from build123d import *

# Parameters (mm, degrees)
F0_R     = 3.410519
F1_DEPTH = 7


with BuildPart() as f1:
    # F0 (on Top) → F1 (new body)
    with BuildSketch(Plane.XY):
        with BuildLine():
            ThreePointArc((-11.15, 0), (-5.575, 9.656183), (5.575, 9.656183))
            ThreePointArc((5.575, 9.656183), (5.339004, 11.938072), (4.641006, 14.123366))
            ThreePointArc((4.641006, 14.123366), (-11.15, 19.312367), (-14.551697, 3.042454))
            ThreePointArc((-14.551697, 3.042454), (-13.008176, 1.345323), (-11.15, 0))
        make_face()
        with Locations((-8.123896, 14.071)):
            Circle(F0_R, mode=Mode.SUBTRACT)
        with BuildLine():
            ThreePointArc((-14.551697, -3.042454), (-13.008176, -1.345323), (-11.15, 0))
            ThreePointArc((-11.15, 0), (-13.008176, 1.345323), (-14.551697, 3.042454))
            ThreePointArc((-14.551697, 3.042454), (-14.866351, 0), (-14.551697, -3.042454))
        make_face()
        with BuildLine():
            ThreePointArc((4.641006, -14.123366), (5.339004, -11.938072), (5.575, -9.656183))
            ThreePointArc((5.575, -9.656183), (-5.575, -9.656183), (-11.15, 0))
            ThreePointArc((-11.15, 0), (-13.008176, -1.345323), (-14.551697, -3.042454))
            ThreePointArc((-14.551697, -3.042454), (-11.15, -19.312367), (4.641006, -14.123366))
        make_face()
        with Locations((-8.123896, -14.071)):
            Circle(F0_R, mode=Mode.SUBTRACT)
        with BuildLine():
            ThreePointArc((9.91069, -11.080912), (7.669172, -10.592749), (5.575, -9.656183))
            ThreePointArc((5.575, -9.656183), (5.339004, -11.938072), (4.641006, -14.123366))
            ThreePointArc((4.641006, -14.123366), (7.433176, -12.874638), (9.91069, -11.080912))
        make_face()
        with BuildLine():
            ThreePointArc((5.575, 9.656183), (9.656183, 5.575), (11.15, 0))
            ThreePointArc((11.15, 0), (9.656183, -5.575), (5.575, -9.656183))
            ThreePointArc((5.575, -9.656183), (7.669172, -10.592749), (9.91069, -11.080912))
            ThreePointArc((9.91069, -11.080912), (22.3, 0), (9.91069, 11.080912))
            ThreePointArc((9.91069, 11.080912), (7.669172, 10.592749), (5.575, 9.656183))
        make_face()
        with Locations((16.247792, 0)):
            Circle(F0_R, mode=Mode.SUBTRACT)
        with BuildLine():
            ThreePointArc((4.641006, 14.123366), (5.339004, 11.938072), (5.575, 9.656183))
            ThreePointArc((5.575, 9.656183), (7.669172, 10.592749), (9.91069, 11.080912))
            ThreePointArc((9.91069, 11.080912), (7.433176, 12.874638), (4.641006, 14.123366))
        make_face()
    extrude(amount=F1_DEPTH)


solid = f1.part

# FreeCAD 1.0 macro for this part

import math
import FreeCAD as App
import Part
import Sketcher
from FreeCAD import Vector

doc = App.newDocument("Part")
params = doc.addObject("Spreadsheet::Sheet", "Params")
for row, (alias, value) in enumerate([
    ("sketch1_radius", "11.15 mm"),
    ("pad1_length", "7 mm"),
], start=1):
    params.set(f"A{row}", alias)
    params.set(f"B{row}", "=" + value)
    params.setAlias(f"B{row}", alias)

body = doc.addObject("PartDesign::Body", "Body")

# Sketch on XY plane
sketch1 = body.newObject("Sketcher::SketchObject", "Sketch")
sketch1.AttachmentSupport = (doc.getObject("XY_Plane"), [""])
sketch1.MapMode = "FlatFace"
sketch1.addGeometry([
    Part.ArcOfCircle(Part.Circle(Vector(11.15, 0, 0), Vector(0, 0, 1), 11.15), math.radians(-96.381548), math.radians(96.381548)),  # 0
    Part.ArcOfCircle(Part.Circle(Vector(0.00001, 0.000019, 0), Vector(0, 0, 1), 14.86633), math.radians(48.190752), math.radians(71.80924)),  # 1
    Part.ArcOfCircle(Part.Circle(Vector(-5.575, 9.656183, 0), Vector(0, 0, 1), 11.15), math.radians(23.618455), math.radians(216.381544)),  # 2
    Part.ArcOfCircle(Part.Circle(Vector(0.000032, 0, 0), Vector(0, 0, 1), 14.866383), math.radians(168.190797), math.radians(191.809203)),  # 3
    Part.ArcOfCircle(Part.Circle(Vector(-5.575, -9.656183, 0), Vector(0, 0, 1), 11.15), math.radians(143.618456), math.radians(336.381545)),  # 4
    Part.ArcOfCircle(Part.Circle(Vector(0.00001, -0.000019, 0), Vector(0, 0, 1), 14.86633), math.radians(-71.80924), math.radians(-48.190752)),  # 5
    Part.Circle(Vector(-8.123896, -14.071, 0), Vector(0, 0, 1), 3.410519),  # 6
    Part.ArcOfCircle(Part.Circle(Vector(0, 0, 0), Vector(0, 0, 1), 11.15), math.radians(60), math.radians(179.999999)),  # 7
    Part.ArcOfCircle(Part.Circle(Vector(-0.000001, -0.000001, 0), Vector(0, 0, 1), 11.150001), math.radians(0.000003), math.radians(59.999998)),  # 8
    Part.ArcOfCircle(Part.Circle(Vector(-0.000001, 0.000001, 0), Vector(0, 0, 1), 11.150001), math.radians(-59.999998), math.radians(-0.000003)),  # 9
    Part.ArcOfCircle(Part.Circle(Vector(0, 0, 0), Vector(0, 0, 1), 11.15), math.radians(-179.999999), math.radians(-60)),  # 10
    Part.Circle(Vector(-8.123896, 14.071, 0), Vector(0, 0, 1), 3.410519),  # 11
    Part.Circle(Vector(16.247792, 0, 0), Vector(0, 0, 1), 3.410519),  # 12
], False)
sketch1.addConstraint([
    Sketcher.Constraint("Coincident", 0, 2, 1, 1),
    Sketcher.Constraint("Coincident", 1, 2, 2, 1),
    Sketcher.Constraint("Coincident", 2, 2, 3, 1),
    Sketcher.Constraint("Coincident", 3, 2, 4, 1),
    Sketcher.Constraint("Coincident", 4, 2, 5, 1),
    Sketcher.Constraint("Coincident", 5, 2, 0, 1),
    Sketcher.Constraint("Tangent", 7, 1, 8, 2),
    Sketcher.Constraint("Tangent", 8, 1, 9, 2),
    Sketcher.Constraint("Tangent", 9, 1, 10, 2),
    Sketcher.Constraint("Tangent", 10, 1, 7, 2),
    Sketcher.Constraint("Coincident", 7, 3, -1, 1),
    Sketcher.Constraint("Coincident", 8, 1, 0, 3),
    Sketcher.Constraint("Equal", 0, 2),
    Sketcher.Constraint("Equal", 2, 4),
    Sketcher.Constraint("Equal", 1, 5),
    Sketcher.Constraint("Equal", 4, 7),
    Sketcher.Constraint("Equal", 7, 8),
    Sketcher.Constraint("Equal", 6, 11),
    Sketcher.Constraint("Equal", 11, 12),
    Sketcher.Constraint("Symmetric", 2, 3, 4, 3, -1),
    Sketcher.Constraint("Symmetric", 1, 3, 5, 3, -1),
    Sketcher.Constraint("Symmetric", 6, 3, 11, 3, -1),
    Sketcher.Constraint("PointOnObject", 0, 3, -1),
    Sketcher.Constraint("PointOnObject", 3, 3, -1),
    Sketcher.Constraint("PointOnObject", 12, 3, -1),
    Sketcher.Constraint("PointOnObject", 10, 1, -1),
    Sketcher.Constraint("Horizontal", 2, 3, 7, 1),
    Sketcher.Constraint("Horizontal", 4, 3, 9, 1),
    Sketcher.Constraint("Radius", 0, 11.15),
    Sketcher.Constraint("Radius", 1, 14.86633),
    Sketcher.Constraint("Diameter", 6, 6.821038),
    Sketcher.Constraint("DistanceX", 2, 3, -1, 1, 5.575),
    Sketcher.Constraint("DistanceY", 6, 3, -1, 1, 14.071),
    Sketcher.Constraint("DistanceX", -1, 1, 7, 1, 5.575),
    Sketcher.Constraint("Radius", 3, 14.866383),
    Sketcher.Constraint("DistanceX", 0, 2, 12, 3, 6.337102),
    Sketcher.Constraint("DistanceX", 2, 2, 11, 3, 6.427801),
    Sketcher.Constraint("DistanceX", -1, 1, 0, 2, 9.91069),
    Sketcher.Constraint("DistanceX", 1, 3, 0, 3, 11.14999),
    Sketcher.Constraint("DistanceX", 3, 3, 0, 3, 11.149968),
])
sketch1.setExpression("Constraints[28]", "Params.sketch1_radius")
pad1 = body.newObject("PartDesign::Pad", "Pad")
pad1.Profile = sketch1
pad1.setExpression("Length", "Params.pad1_length")

doc.recompute()
